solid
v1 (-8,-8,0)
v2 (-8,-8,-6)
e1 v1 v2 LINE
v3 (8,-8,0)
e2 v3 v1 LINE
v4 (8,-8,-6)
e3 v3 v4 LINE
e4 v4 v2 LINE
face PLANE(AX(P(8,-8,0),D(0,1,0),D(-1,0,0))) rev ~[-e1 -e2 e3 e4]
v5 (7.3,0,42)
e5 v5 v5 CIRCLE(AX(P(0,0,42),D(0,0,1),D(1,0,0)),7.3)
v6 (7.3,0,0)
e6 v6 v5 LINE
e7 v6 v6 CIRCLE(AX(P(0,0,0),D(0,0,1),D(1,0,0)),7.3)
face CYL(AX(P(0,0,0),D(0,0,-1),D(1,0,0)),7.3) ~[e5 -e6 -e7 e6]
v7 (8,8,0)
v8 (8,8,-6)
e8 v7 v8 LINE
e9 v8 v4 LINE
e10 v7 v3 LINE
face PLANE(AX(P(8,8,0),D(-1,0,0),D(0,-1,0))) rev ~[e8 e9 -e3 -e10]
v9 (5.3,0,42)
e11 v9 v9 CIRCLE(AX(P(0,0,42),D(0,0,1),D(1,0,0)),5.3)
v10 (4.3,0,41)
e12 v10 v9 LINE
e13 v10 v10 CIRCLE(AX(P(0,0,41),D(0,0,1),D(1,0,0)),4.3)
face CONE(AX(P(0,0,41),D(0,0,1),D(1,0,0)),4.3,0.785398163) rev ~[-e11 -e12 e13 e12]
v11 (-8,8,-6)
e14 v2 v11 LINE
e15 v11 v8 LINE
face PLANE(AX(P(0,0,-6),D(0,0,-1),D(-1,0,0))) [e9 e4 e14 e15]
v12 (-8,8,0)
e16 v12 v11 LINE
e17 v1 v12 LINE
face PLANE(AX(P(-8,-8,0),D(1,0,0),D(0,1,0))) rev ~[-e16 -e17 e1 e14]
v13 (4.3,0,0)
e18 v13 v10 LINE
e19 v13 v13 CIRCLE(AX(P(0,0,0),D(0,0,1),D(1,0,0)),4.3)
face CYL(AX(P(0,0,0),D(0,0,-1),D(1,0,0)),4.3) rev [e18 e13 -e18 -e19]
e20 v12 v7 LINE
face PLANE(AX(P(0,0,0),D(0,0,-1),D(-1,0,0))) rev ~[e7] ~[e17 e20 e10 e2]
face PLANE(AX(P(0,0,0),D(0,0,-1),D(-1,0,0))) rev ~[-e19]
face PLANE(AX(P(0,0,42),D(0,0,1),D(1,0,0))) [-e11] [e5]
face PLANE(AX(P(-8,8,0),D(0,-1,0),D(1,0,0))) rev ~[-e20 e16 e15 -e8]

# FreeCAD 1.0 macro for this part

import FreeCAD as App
import Part
import Sketcher
from FreeCAD import Vector


def edges_at(feature, points):
    """Names of the edges that pass closest to the given points."""
    edges = feature.Shape.Edges
    near = lambda p: min(range(len(edges)), key=lambda i: edges[i].distToShape(Part.Vertex(*p))[0])
    return sorted({f"Edge{near(p) + 1}" for p in points})

doc = App.newDocument("Part")
params = doc.addObject("Spreadsheet::Sheet", "Params")
for row, (alias, value) in enumerate([
    ("sketch1_diameter", "14.6 mm"),
    ("sketch1_diameter2", "8.6 mm"),
    ("pad1_length", "42 mm"),
    ("chamfer_size", "1 mm"),
    ("pad2_length", "6 mm"),
], start=1):
    params.set(f"A{row}", alias)
    params.set(f"B{row}", "=" + value)
    params.setAlias(f"B{row}", alias)

body = doc.addObject("PartDesign::Body", "Body")

sketch1 = body.newObject("Sketcher::SketchObject", "Sketch")
sketch1.AttachmentSupport = (doc.getObject("XY_Plane"), [""])
sketch1.MapMode = "FlatFace"
sketch1.addGeometry(Part.Circle(Vector(0, 0, 0), Vector(0, 0, 1), 7.3), False)
sketch1.addGeometry(Part.Circle(Vector(0, 0, 0), Vector(0, 0, 1), 4.3), False)
sketch1.addConstraint(Sketcher.Constraint("Coincident", 0, 3, -1, 1))
sketch1.addConstraint(Sketcher.Constraint("Coincident", 1, 3, -1, 1))
sketch1.addConstraint(Sketcher.Constraint("Diameter", 0, 14.6))
sketch1.addConstraint(Sketcher.Constraint("Diameter", 1, 8.6))
sketch1.setExpression("Constraints[2]", "Params.sketch1_diameter")
sketch1.setExpression("Constraints[3]", "Params.sketch1_diameter2")
pad1 = body.newObject("PartDesign::Pad", "Pad")
pad1.Profile = sketch1
pad1.setExpression("Length", "Params.pad1_length")
doc.recompute()

chamfer = body.newObject("PartDesign::Chamfer", "Chamfer")
chamfer.Base = (pad1, edges_at(pad1, [(-4.3, 0, 42)]))
chamfer.setExpression("Size", "Params.chamfer_size")

sketch2 = body.newObject("Sketcher::SketchObject", "Sketch001")
sketch2.AttachmentSupport = (doc.getObject("XY_Plane"), [""])
sketch2.MapMode = "FlatFace"
sketch2.addGeometry(Part.LineSegment(Vector(-8, 8, 0), Vector(8, 8, 0)), False)
sketch2.addGeometry(Part.LineSegment(Vector(8, 8, 0), Vector(8, -8, 0)), False)
sketch2.addGeometry(Part.LineSegment(Vector(8, -8, 0), Vector(-8, -8, 0)), False)
sketch2.addGeometry(Part.LineSegment(Vector(-8, -8, 0), Vector(-8, 8, 0)), False)
sketch2.addConstraint(Sketcher.Constraint("Coincident", 0, 2, 1, 1))
sketch2.addConstraint(Sketcher.Constraint("Coincident", 1, 2, 2, 1))
sketch2.addConstraint(Sketcher.Constraint("Coincident", 2, 2, 3, 1))
sketch2.addConstraint(Sketcher.Constraint("Coincident", 3, 2, 0, 1))
sketch2.addConstraint(Sketcher.Constraint("Horizontal", 0))
sketch2.addConstraint(Sketcher.Constraint("Vertical", 1))
sketch2.addConstraint(Sketcher.Constraint("Horizontal", 2))
sketch2.addConstraint(Sketcher.Constraint("Vertical", 3))
sketch2.addConstraint(Sketcher.Constraint("Symmetric", 0, 2, 2, 2, -1, 1))
sketch2.addConstraint(Sketcher.Constraint("Equal", 2, 1))
sketch2.addConstraint(Sketcher.Constraint("DistanceX", -1, 1, 0, 2, 8.0))
pad2 = body.newObject("PartDesign::Pad", "Pad001")
pad2.Profile = sketch2
pad2.setExpression("Length", "Params.pad2_length")
pad2.Reversed = True

doc.recompute()
